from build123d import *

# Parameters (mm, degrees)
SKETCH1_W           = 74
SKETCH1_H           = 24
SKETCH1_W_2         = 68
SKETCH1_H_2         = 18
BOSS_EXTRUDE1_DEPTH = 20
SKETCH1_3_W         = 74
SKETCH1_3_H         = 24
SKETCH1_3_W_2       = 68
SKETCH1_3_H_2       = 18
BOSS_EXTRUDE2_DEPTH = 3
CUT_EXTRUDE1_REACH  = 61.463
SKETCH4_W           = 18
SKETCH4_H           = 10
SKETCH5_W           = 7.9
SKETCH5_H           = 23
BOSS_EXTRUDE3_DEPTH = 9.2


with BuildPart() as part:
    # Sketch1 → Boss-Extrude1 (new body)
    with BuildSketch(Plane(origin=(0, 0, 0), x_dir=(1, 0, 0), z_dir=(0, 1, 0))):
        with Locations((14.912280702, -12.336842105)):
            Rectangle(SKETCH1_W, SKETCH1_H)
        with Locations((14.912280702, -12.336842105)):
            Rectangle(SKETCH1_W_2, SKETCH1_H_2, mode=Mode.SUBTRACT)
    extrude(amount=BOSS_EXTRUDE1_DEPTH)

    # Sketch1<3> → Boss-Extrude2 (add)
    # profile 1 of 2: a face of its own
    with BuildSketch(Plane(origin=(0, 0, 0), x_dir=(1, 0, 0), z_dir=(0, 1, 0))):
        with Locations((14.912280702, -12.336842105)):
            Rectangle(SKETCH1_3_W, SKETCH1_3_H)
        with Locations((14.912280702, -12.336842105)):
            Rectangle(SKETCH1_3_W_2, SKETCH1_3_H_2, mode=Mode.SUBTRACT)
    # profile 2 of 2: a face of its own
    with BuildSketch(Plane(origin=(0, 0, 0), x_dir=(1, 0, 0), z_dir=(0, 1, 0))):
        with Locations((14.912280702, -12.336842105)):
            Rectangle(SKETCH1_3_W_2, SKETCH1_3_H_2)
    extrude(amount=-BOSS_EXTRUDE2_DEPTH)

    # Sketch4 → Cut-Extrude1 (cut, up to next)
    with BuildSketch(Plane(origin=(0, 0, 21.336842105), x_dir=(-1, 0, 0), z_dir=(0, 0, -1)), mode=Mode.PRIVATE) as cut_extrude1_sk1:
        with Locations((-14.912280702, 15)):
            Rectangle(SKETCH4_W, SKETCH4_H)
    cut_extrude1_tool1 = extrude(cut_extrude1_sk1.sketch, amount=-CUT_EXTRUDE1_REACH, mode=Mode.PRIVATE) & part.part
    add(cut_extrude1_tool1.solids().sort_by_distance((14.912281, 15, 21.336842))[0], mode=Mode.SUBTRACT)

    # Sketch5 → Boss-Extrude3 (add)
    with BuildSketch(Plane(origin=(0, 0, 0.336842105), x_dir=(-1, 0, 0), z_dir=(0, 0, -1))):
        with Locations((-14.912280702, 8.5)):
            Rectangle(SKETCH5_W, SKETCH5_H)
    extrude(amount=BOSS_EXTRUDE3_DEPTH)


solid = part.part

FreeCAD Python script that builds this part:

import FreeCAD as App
import Part
import Sketcher

V = App.Vector

doc = App.newDocument("Part")
body = doc.addObject("PartDesign::Body", "Body")

# Sketch on XZ plane
sketch1 = body.newObject("Sketcher::SketchObject", "Sketch")
sketch1.AttachmentSupport = (doc.getObject("XZ_Plane"), [""])
sketch1.MapMode = "FlatFace"
sketch1.addGeometry(Part.LineSegment(V(-22, 0, 0), V(-22, 24, 0)), False)
sketch1.addGeometry(Part.LineSegment(V(-22, 24, 0), V(52, 24, 0)), False)
sketch1.addGeometry(Part.LineSegment(V(52, 24, 0), V(52, 0, 0)), False)
sketch1.addGeometry(Part.LineSegment(V(52, 0, 0), V(-22, 0, 0)), False)
sketch1.addGeometry(Part.LineSegment(V(49, 21, 0), V(-19, 21, 0)), False)
sketch1.addGeometry(Part.LineSegment(V(-19, 21, 0), V(-19, 3, 0)), False)
sketch1.addGeometry(Part.LineSegment(V(-19, 3, 0), V(49, 3, 0)), False)
sketch1.addGeometry(Part.LineSegment(V(49, 3, 0), V(49, 21, 0)), False)
sketch1.addConstraint(Sketcher.Constraint("Coincident", 0, 2, 1, 1))
sketch1.addConstraint(Sketcher.Constraint("Coincident", 1, 2, 2, 1))
sketch1.addConstraint(Sketcher.Constraint("Coincident", 2, 2, 3, 1))
sketch1.addConstraint(Sketcher.Constraint("Coincident", 3, 2, 0, 1))
sketch1.addConstraint(Sketcher.Constraint("Coincident", 4, 2, 5, 1))
sketch1.addConstraint(Sketcher.Constraint("Coincident", 5, 2, 6, 1))
sketch1.addConstraint(Sketcher.Constraint("Coincident", 6, 2, 7, 1))
sketch1.addConstraint(Sketcher.Constraint("Coincident", 7, 2, 4, 1))
sketch1.addConstraint(Sketcher.Constraint("Vertical", 0))
sketch1.addConstraint(Sketcher.Constraint("Horizontal", 1))
sketch1.addConstraint(Sketcher.Constraint("Vertical", 2))
sketch1.addConstraint(Sketcher.Constraint("Horizontal", 3))
sketch1.addConstraint(Sketcher.Constraint("Horizontal", 4))
sketch1.addConstraint(Sketcher.Constraint("Vertical", 5))
sketch1.addConstraint(Sketcher.Constraint("Horizontal", 6))
sketch1.addConstraint(Sketcher.Constraint("Vertical", 7))
sketch1.addConstraint(Sketcher.Constraint("DistanceX", 1, 1, 1, 2, 74.0))
sketch1.addConstraint(Sketcher.Constraint("DistanceX", 4, 2, 4, 1, 68.0))
sketch1.addConstraint(Sketcher.Constraint("DistanceY", 0, 1, 0, 2, 24.0))
sketch1.addConstraint(Sketcher.Constraint("DistanceY", 5, 2, 5, 1, 18.0))
sketch1.addConstraint(Sketcher.Constraint("DistanceX", 0, 2, 4, 2, 3.0))
sketch1.addConstraint(Sketcher.Constraint("DistanceY", 4, 2, 0, 2, 3.0))
sketch1.addConstraint(Sketcher.Constraint("DistanceX", 0, 2, -1, 1, 22.087719))
sketch1.addConstraint(Sketcher.Constraint("DistanceY", -1, 1, 0, 2, 24.336842))
pad1 = body.newObject("PartDesign::Pad", "Pad")
pad1.Profile = sketch1
pad1.Length = 20
pad1.Reversed = True

# Sketch on XZ plane
sketch2 = body.newObject("Sketcher::SketchObject", "Sketch001")
sketch2.AttachmentSupport = (doc.getObject("XZ_Plane"), [""])
sketch2.MapMode = "FlatFace"
sketch2.addGeometry(Part.LineSegment(V(-22, 0, 0), V(-22, 24, 0)), False)
sketch2.addGeometry(Part.LineSegment(V(-22, 24, 0), V(52, 24, 0)), False)
sketch2.addGeometry(Part.LineSegment(V(52, 24, 0), V(52, 0, 0)), False)
sketch2.addGeometry(Part.LineSegment(V(52, 0, 0), V(-22, 0, 0)), False)
sketch2.addConstraint(Sketcher.Constraint("Coincident", 0, 2, 1, 1))
sketch2.addConstraint(Sketcher.Constraint("Coincident", 1, 2, 2, 1))
sketch2.addConstraint(Sketcher.Constraint("Coincident", 2, 2, 3, 1))
sketch2.addConstraint(Sketcher.Constraint("Coincident", 3, 2, 0, 1))
sketch2.addConstraint(Sketcher.Constraint("Vertical", 0))
sketch2.addConstraint(Sketcher.Constraint("Horizontal", 1))
sketch2.addConstraint(Sketcher.Constraint("Vertical", 2))
sketch2.addConstraint(Sketcher.Constraint("Horizontal", 3))
sketch2.addConstraint(Sketcher.Constraint("DistanceX", 1, 1, 1, 2, 74.0))
sketch2.addConstraint(Sketcher.Constraint("DistanceY", 0, 1, 0, 2, 24.0))
sketch2.addConstraint(Sketcher.Constraint("DistanceX", 0, 2, -1, 1, 22.087719))
sketch2.addConstraint(Sketcher.Constraint("DistanceY", -1, 1, 0, 2, 24.336842))
pad2 = body.newObject("PartDesign::Pad", "Pad001")
pad2.Profile = sketch2
pad2.Length = 3

# Sketch on XY plane
sketch3 = body.newObject("Sketcher::SketchObject", "Sketch002")
sketch3.AttachmentSupport = (doc.getObject("XY_Plane"), [""])
sketch3.MapMode = "FlatFace"
sketch3.AttachmentOffset = App.Placement(V(0, 0, 21.336842), App.Rotation())
sketch3.addGeometry(Part.LineSegment(V(24, 20, 0), V(24, 10, 0)), False)
sketch3.addGeometry(Part.LineSegment(V(24, 10, 0), V(6, 10, 0)), False)
sketch3.addGeometry(Part.LineSegment(V(6, 10, 0), V(6, 20, 0)), False)
sketch3.addGeometry(Part.LineSegment(V(6, 20, 0), V(24, 20, 0)), False)
sketch3.addConstraint(Sketcher.Constraint("Coincident", 0, 2, 1, 1))
sketch3.addConstraint(Sketcher.Constraint("Coincident", 1, 2, 2, 1))
sketch3.addConstraint(Sketcher.Constraint("Coincident", 2, 2, 3, 1))
sketch3.addConstraint(Sketcher.Constraint("Coincident", 3, 2, 0, 1))
sketch3.addConstraint(Sketcher.Constraint("Vertical", 0))
sketch3.addConstraint(Sketcher.Constraint("Horizontal", 1))
sketch3.addConstraint(Sketcher.Constraint("Vertical", 2))
sketch3.addConstraint(Sketcher.Constraint("Horizontal", 3))
sketch3.addConstraint(Sketcher.Constraint("DistanceX", 1, 2, 1, 1, 18.0))
sketch3.addConstraint(Sketcher.Constraint("DistanceY", 0, 2, 0, 1, 10.0))
sketch3.addConstraint(Sketcher.Constraint("DistanceY", -1, 1, 0, 2, 10.0))
sketch3.addConstraint(Sketcher.Constraint("DistanceX", -1, 1, 0, 2, 23.912281))
pocket1 = body.newObject("PartDesign::Pocket", "Pocket")
pocket1.Profile = sketch3
pocket1.Type = "UpToFirst"
pocket1.Reversed = True

# Sketch on XY plane
sketch4 = body.newObject("Sketcher::SketchObject", "Sketch003")
sketch4.AttachmentSupport = (doc.getObject("XY_Plane"), [""])
sketch4.MapMode = "FlatFace"
sketch4.AttachmentOffset = App.Placement(V(0, 0, 0.336842), App.Rotation())
sketch4.addGeometry(Part.LineSegment(V(19, 20, 0), V(19, -3, 0)), False)
sketch4.addGeometry(Part.LineSegment(V(19, -3, 0), V(11, -3, 0)), False)
sketch4.addGeometry(Part.LineSegment(V(11, -3, 0), V(11, 20, 0)), False)
sketch4.addGeometry(Part.LineSegment(V(11, 20, 0), V(19, 20, 0)), False)
sketch4.addConstraint(Sketcher.Constraint("Coincident", 0, 2, 1, 1))
sketch4.addConstraint(Sketcher.Constraint("Coincident", 1, 2, 2, 1))
sketch4.addConstraint(Sketcher.Constraint("Coincident", 2, 2, 3, 1))
sketch4.addConstraint(Sketcher.Constraint("Coincident", 3, 2, 0, 1))
sketch4.addConstraint(Sketcher.Constraint("Vertical", 0))
sketch4.addConstraint(Sketcher.Constraint("Horizontal", 1))
sketch4.addConstraint(Sketcher.Constraint("Vertical", 2))
sketch4.addConstraint(Sketcher.Constraint("Horizontal", 3))
sketch4.addConstraint(Sketcher.Constraint("DistanceY", 0, 2, 0, 1, 23.0))
sketch4.addConstraint(Sketcher.Constraint("DistanceX", 1, 2, 1, 1, 7.9))
sketch4.addConstraint(Sketcher.Constraint("DistanceY", 0, 2, -1, 1, 3.0))
sketch4.addConstraint(Sketcher.Constraint("DistanceX", -1, 1, 0, 2, 18.862281))
pad3 = body.newObject("PartDesign::Pad", "Pad002")
pad3.Profile = sketch4
pad3.Length = 9.2
pad3.Reversed = True

doc.recompute()
